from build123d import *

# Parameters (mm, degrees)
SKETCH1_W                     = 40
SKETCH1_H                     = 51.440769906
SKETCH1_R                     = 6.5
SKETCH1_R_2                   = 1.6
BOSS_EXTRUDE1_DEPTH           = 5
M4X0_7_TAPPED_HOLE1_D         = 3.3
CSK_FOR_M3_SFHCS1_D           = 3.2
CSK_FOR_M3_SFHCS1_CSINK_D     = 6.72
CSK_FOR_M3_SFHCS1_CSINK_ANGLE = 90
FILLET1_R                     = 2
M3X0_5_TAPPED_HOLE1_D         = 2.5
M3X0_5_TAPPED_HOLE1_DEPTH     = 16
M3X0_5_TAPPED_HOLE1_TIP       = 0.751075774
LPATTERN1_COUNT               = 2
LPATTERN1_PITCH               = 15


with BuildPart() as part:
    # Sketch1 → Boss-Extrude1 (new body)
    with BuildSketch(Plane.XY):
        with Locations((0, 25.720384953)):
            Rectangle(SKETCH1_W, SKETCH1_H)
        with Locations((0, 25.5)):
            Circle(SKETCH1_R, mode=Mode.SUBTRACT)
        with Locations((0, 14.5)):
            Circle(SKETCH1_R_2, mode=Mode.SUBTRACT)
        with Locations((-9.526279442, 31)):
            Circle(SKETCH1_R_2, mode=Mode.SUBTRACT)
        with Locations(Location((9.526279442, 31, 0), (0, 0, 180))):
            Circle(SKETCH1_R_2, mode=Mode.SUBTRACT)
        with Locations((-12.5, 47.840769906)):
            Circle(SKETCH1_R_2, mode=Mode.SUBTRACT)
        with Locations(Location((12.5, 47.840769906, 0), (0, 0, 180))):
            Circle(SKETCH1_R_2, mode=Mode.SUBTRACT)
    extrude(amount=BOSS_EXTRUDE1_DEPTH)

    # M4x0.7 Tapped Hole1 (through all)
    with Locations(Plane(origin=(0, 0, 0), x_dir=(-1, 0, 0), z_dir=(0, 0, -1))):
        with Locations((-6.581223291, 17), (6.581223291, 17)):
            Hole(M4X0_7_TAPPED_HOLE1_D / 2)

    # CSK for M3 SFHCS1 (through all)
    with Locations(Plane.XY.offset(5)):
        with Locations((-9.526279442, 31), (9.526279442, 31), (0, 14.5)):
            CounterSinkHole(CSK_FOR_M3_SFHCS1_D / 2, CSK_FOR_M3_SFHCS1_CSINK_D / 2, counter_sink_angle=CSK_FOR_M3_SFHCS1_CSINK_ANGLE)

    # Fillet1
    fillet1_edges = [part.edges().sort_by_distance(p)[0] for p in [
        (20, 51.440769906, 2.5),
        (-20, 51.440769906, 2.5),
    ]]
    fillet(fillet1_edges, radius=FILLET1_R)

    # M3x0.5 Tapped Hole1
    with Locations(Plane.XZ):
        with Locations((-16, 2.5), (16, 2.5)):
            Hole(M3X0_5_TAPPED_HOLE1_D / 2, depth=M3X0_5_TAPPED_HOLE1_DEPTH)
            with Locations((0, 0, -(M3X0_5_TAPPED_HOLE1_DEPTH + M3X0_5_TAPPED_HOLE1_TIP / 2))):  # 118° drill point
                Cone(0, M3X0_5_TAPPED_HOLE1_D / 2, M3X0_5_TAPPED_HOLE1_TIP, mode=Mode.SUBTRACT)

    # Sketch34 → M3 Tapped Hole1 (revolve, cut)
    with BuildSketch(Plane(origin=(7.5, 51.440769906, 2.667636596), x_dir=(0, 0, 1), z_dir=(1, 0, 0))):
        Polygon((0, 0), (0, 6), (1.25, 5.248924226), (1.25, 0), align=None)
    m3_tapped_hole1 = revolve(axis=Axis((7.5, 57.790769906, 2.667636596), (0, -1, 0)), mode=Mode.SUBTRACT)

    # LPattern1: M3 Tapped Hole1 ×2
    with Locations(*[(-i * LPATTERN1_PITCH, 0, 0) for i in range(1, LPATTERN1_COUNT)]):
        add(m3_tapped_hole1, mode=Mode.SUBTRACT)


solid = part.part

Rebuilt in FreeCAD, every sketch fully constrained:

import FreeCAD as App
import Part
import Sketcher
from FreeCAD import Vector
Q = App.Units.Quantity


def edges_at(feature, points):
    """Names of the edges that pass closest to the given points."""
    edges = feature.Shape.Edges
    near = lambda p: min(range(len(edges)), key=lambda i: edges[i].distToShape(Part.Vertex(*p))[0])
    return sorted({f"Edge{near(p) + 1}" for p in points})

doc = App.newDocument("Part")
params = doc.addObject("Spreadsheet::Sheet", "Params")
for row, (alias, value) in enumerate([
    ("sketch1_diameter", "13 mm"),
    ("sketch1_diameter2", "3.2 mm"),
    ("sketch1_width", "40 mm"),
    ("pad1_length", "5 mm"),
    ("sketch2_diameter", "3.3 mm"),
    ("hole_diameter", "3.3 mm"),
    ("sketch3_diameter", "3.2 mm"),
    ("hole2_diameter", "3.2 mm"),
    ("hole2_csink_diameter", "6.72 mm"),
    ("fillet_radius", "2 mm"),
    ("sketch4_diameter", "2.5 mm"),
    ("hole3_diameter", "2.5 mm"),
    ("hole3_depth", "16 mm"),
    ("sketch5_width", "6 mm"),
    ("sketch5_height", "1.25 mm"),
    ("groove_angle", "360 deg"),
    ("linearpattern_pitch", "15 mm"),
], start=1):
    params.set(f"A{row}", alias)
    params.set(f"B{row}", "=" + value)
    params.setAlias(f"B{row}", alias)

body = doc.addObject("PartDesign::Body", "Body")

# Sketch on XY plane
sketch1 = body.newObject("Sketcher::SketchObject", "Sketch")
sketch1.AttachmentSupport = (doc.getObject("XY_Plane"), [""])
sketch1.MapMode = "FlatFace"
sketch1.addGeometry([
    Part.LineSegment(Vector(-20, 51.44077, 0), Vector(-20, 0, 0)),  # 0
    Part.LineSegment(Vector(-20, 0, 0), Vector(20, 0, 0)),  # 1
    Part.LineSegment(Vector(20, 0, 0), Vector(20, 51.44077, 0)),  # 2
    Part.LineSegment(Vector(20, 51.44077, 0), Vector(-20, 51.44077, 0)),  # 3
    Part.Circle(Vector(-9.526279, 31, 0), Vector(0, 0, 1), 1.6),  # 4
    Part.Circle(Vector(0, 14.5, 0), Vector(0, 0, 1), 1.6),  # 5
    Part.Circle(Vector(0, 25.5, 0), Vector(0, 0, 1), 6.5),  # 6
    Part.Circle(Vector(9.526279, 31, 0), Vector(0, 0, 1), 1.6),  # 7
    Part.Circle(Vector(-12.5, 47.84077, 0), Vector(0, 0, 1), 1.6),  # 8
    Part.Circle(Vector(12.5, 47.84077, 0), Vector(0, 0, 1), 1.6),  # 9
], False)
sketch1.addConstraint([
    Sketcher.Constraint("Coincident", 0, 2, 1, 1),
    Sketcher.Constraint("Coincident", 1, 2, 2, 1),
    Sketcher.Constraint("Coincident", 2, 2, 3, 1),
    Sketcher.Constraint("Coincident", 3, 2, 0, 1),
    Sketcher.Constraint("Vertical", 0),
    Sketcher.Constraint("Horizontal", 1),
    Sketcher.Constraint("Vertical", 2),
    Sketcher.Constraint("Horizontal", 3),
    Sketcher.Constraint("Equal", 4, 5),
    Sketcher.Constraint("Equal", 5, 7),
    Sketcher.Constraint("Equal", 7, 8),
    Sketcher.Constraint("Equal", 8, 9),
    Sketcher.Constraint("Symmetric", 0, 2, 1, 2, -1, 1),
    Sketcher.Constraint("Symmetric", 4, 3, 7, 3, -2),
    Sketcher.Constraint("Symmetric", 8, 3, 9, 3, -2),
    Sketcher.Constraint("PointOnObject", 5, 3, -2),
    Sketcher.Constraint("PointOnObject", 6, 3, -2),
    Sketcher.Constraint("Diameter", 6, Q("13 mm")),
    Sketcher.Constraint("Diameter", 4, Q("3.2 mm")),
    Sketcher.Constraint("DistanceX", 1, 1, 1, 2, Q("40 mm")),
    Sketcher.Constraint("DistanceY", -1, 1, 4, 3, Q("31 mm")),
    Sketcher.Constraint("DistanceY", 5, 3, 6, 3, Q("11 mm")),
    Sketcher.Constraint("DistanceX", 8, 3, 9, 3, Q("25 mm")),
    Sketcher.Constraint("DistanceY", -1, 1, 5, 3, Q("14.5 mm")),
    Sketcher.Constraint("DistanceY", 9, 3, 2, 2, Q("3.6 mm")),
    Sketcher.Constraint("DistanceY", 0, 2, 0, 1, Q("51.44077 mm")),
    Sketcher.Constraint("DistanceX", 4, 3, -1, 1, Q("9.526279 mm")),
])
sketch1.setExpression("Constraints[17]", "Params.sketch1_diameter")
sketch1.setExpression("Constraints[18]", "Params.sketch1_diameter2")
sketch1.setExpression("Constraints[19]", "Params.sketch1_width")
pad1 = body.newObject("PartDesign::Pad", "Pad")
pad1.Profile = sketch1
pad1.setExpression("Length", "Params.pad1_length")

# Sketch on XY plane
sketch2 = body.newObject("Sketcher::SketchObject", "Sketch001")
sketch2.AttachmentSupport = (doc.getObject("XY_Plane"), [""])
sketch2.MapMode = "FlatFace"
sketch2.addGeometry([
    Part.Circle(Vector(6.581223, 17, 0), Vector(0, 0, 1), 1.65),
    Part.Circle(Vector(-6.581223, 17, 0), Vector(0, 0, 1), 1.65),
], False)
sketch2.addConstraint([
    Sketcher.Constraint("Equal", 0, 1),
    Sketcher.Constraint("Symmetric", 0, 3, 1, 3, -2),
    Sketcher.Constraint("Diameter", 0, Q("3.3 mm")),
    Sketcher.Constraint("DistanceY", -1, 1, 0, 3, Q("17 mm")),
    Sketcher.Constraint("DistanceX", -1, 1, 0, 3, Q("6.581223 mm")),
])
sketch2.setExpression("Constraints[2]", "Params.sketch2_diameter")
doc.recompute()
hole = body.newObject("PartDesign::Hole", "Hole")
hole.Profile = sketch2
hole.ThreadType = "None"
hole.setExpression("Diameter", "Params.hole_diameter")
hole.DepthType = "ThroughAll"
hole.Reversed = True

# Sketch on XY plane
sketch3 = body.newObject("Sketcher::SketchObject", "Sketch002")
sketch3.AttachmentSupport = (doc.getObject("XY_Plane"), [""])
sketch3.MapMode = "FlatFace"
sketch3.AttachmentOffset = App.Placement(Vector(0, 0, 5), App.Rotation())
sketch3.addGeometry([
    Part.Circle(Vector(-9.526279, 31, 0), Vector(0, 0, 1), 1.6),
    Part.Circle(Vector(9.526279, 31, 0), Vector(0, 0, 1), 1.6),
    Part.Circle(Vector(0, 14.5, 0), Vector(0, 0, 1), 1.6),
], False)
sketch3.addConstraint([
    Sketcher.Constraint("Equal", 0, 1),
    Sketcher.Constraint("Equal", 1, 2),
    Sketcher.Constraint("Symmetric", 0, 3, 1, 3, -2),
    Sketcher.Constraint("PointOnObject", 2, 3, -2),
    Sketcher.Constraint("Diameter", 0, Q("3.2 mm")),
    Sketcher.Constraint("DistanceY", -1, 1, 0, 3, Q("31 mm")),
    Sketcher.Constraint("DistanceY", -1, 1, 2, 3, Q("14.5 mm")),
    Sketcher.Constraint("DistanceX", 0, 3, -1, 1, Q("9.526279 mm")),
])
sketch3.setExpression("Constraints[4]", "Params.sketch3_diameter")
doc.recompute()
hole2 = body.newObject("PartDesign::Hole", "Hole001")
hole2.Profile = sketch3
hole2.ThreadType = "None"
hole2.setExpression("Diameter", "Params.hole2_diameter")
hole2.DepthType = "ThroughAll"
hole2.HoleCutType = "Countersink"
hole2.setExpression("HoleCutDiameter", "Params.hole2_csink_diameter")
hole2.HoleCutCountersinkAngle = 90
doc.recompute()

fillet = body.newObject("PartDesign::Fillet", "Fillet")
fillet.Base = (hole2, edges_at(hole2, [(20, 51.441, 2.5), (-20, 51.441, 2.5)]))
fillet.setExpression("Radius", "Params.fillet_radius")

# Sketch on XZ plane
sketch4 = body.newObject("Sketcher::SketchObject", "Sketch003")
sketch4.AttachmentSupport = (doc.getObject("XZ_Plane"), [""])
sketch4.MapMode = "FlatFace"
sketch4.addGeometry([
    Part.Circle(Vector(-16, 2.5, 0), Vector(0, 0, 1), 1.25),
    Part.Circle(Vector(16, 2.5, 0), Vector(0, 0, 1), 1.25),
], False)
sketch4.addConstraint([
    Sketcher.Constraint("Equal", 0, 1),
    Sketcher.Constraint("Symmetric", 0, 3, 1, 3, -2),
    Sketcher.Constraint("Diameter", 0, Q("2.5 mm")),
    Sketcher.Constraint("DistanceX", 0, 3, -1, 1, Q("16 mm")),
    Sketcher.Constraint("DistanceY", -1, 1, 0, 3, Q("2.5 mm")),
])
sketch4.setExpression("Constraints[2]", "Params.sketch4_diameter")
doc.recompute()
hole3 = body.newObject("PartDesign::Hole", "Hole002")
hole3.Profile = sketch4
hole3.ThreadType = "None"
hole3.setExpression("Diameter", "Params.hole3_diameter")
hole3.DepthType = "Dimension"
hole3.setExpression("Depth", "Params.hole3_depth")
hole3.DrillPoint = "Angled"
hole3.DrillPointAngle = 118

# Sketch on YZ plane
sketch5 = body.newObject("Sketcher::SketchObject", "Sketch004")
sketch5.AttachmentSupport = (doc.getObject("YZ_Plane"), [""])
sketch5.MapMode = "FlatFace"
sketch5.AttachmentOffset = App.Placement(Vector(0, 0, 7.5), App.Rotation())
sketch5.addGeometry([
    Part.LineSegment(Vector(45.44077, 2.667637, 0), Vector(51.44077, 2.667637, 0)),
    Part.LineSegment(Vector(51.44077, 2.667637, 0), Vector(51.44077, 3.917637, 0)),
    Part.LineSegment(Vector(51.44077, 3.917637, 0), Vector(46.191846, 3.917637, 0)),
    Part.LineSegment(Vector(46.191846, 3.917637, 0), Vector(45.44077, 2.667637, 0)),
], False)
sketch5.addGeometry(Part.LineSegment(Vector(51.44077, 2.667637, 0), Vector(45.44077, 2.667637, 0)), True)  # axis
sketch5.addConstraint([
    Sketcher.Constraint("Coincident", 0, 2, 1, 1),
    Sketcher.Constraint("Coincident", 1, 2, 2, 1),
    Sketcher.Constraint("Coincident", 2, 2, 3, 1),
    Sketcher.Constraint("Coincident", 3, 2, 0, 1),
    Sketcher.Constraint("Horizontal", 0),
    Sketcher.Constraint("Vertical", 1),
    Sketcher.Constraint("Horizontal", 2),
    Sketcher.Constraint("Horizontal", 4),
    Sketcher.Constraint("Coincident", 4, 1, 0, 2),
    Sketcher.Constraint("Equal", 0, 4),
    Sketcher.Constraint("DistanceX", 0, 1, 0, 2, Q("6 mm")),
    Sketcher.Constraint("Angle", 3, Q("-121 deg")),
    Sketcher.Constraint("DistanceY", 1, 1, 1, 2, Q("1.25 mm")),
    Sketcher.Constraint("DistanceX", -1, 1, 0, 2, Q("51.44077 mm")),
    Sketcher.Constraint("DistanceY", -1, 1, 0, 2, Q("2.667637 mm")),
])
sketch5.setExpression("Constraints[10]", "Params.sketch5_width")
sketch5.setExpression("Constraints[12]", "Params.sketch5_height")
groove = body.newObject("PartDesign::Groove", "Groove")
groove.Profile = sketch5
groove.ReferenceAxis = (sketch5, ["Axis0"])
groove.setExpression("Angle", "Params.groove_angle")
doc.recompute()

linearpattern = body.newObject("PartDesign::LinearPattern", "LinearPattern")
linearpattern.Originals = [groove]
linearpattern.Direction = (doc.getObject("X_Axis"), [""])
linearpattern.Mode = "offset"
linearpattern.setExpression("Offset", "Params.linearpattern_pitch")
linearpattern.Occurrences = 2
linearpattern.Reversed = True
body.Tip = linearpattern

doc.recompute()
